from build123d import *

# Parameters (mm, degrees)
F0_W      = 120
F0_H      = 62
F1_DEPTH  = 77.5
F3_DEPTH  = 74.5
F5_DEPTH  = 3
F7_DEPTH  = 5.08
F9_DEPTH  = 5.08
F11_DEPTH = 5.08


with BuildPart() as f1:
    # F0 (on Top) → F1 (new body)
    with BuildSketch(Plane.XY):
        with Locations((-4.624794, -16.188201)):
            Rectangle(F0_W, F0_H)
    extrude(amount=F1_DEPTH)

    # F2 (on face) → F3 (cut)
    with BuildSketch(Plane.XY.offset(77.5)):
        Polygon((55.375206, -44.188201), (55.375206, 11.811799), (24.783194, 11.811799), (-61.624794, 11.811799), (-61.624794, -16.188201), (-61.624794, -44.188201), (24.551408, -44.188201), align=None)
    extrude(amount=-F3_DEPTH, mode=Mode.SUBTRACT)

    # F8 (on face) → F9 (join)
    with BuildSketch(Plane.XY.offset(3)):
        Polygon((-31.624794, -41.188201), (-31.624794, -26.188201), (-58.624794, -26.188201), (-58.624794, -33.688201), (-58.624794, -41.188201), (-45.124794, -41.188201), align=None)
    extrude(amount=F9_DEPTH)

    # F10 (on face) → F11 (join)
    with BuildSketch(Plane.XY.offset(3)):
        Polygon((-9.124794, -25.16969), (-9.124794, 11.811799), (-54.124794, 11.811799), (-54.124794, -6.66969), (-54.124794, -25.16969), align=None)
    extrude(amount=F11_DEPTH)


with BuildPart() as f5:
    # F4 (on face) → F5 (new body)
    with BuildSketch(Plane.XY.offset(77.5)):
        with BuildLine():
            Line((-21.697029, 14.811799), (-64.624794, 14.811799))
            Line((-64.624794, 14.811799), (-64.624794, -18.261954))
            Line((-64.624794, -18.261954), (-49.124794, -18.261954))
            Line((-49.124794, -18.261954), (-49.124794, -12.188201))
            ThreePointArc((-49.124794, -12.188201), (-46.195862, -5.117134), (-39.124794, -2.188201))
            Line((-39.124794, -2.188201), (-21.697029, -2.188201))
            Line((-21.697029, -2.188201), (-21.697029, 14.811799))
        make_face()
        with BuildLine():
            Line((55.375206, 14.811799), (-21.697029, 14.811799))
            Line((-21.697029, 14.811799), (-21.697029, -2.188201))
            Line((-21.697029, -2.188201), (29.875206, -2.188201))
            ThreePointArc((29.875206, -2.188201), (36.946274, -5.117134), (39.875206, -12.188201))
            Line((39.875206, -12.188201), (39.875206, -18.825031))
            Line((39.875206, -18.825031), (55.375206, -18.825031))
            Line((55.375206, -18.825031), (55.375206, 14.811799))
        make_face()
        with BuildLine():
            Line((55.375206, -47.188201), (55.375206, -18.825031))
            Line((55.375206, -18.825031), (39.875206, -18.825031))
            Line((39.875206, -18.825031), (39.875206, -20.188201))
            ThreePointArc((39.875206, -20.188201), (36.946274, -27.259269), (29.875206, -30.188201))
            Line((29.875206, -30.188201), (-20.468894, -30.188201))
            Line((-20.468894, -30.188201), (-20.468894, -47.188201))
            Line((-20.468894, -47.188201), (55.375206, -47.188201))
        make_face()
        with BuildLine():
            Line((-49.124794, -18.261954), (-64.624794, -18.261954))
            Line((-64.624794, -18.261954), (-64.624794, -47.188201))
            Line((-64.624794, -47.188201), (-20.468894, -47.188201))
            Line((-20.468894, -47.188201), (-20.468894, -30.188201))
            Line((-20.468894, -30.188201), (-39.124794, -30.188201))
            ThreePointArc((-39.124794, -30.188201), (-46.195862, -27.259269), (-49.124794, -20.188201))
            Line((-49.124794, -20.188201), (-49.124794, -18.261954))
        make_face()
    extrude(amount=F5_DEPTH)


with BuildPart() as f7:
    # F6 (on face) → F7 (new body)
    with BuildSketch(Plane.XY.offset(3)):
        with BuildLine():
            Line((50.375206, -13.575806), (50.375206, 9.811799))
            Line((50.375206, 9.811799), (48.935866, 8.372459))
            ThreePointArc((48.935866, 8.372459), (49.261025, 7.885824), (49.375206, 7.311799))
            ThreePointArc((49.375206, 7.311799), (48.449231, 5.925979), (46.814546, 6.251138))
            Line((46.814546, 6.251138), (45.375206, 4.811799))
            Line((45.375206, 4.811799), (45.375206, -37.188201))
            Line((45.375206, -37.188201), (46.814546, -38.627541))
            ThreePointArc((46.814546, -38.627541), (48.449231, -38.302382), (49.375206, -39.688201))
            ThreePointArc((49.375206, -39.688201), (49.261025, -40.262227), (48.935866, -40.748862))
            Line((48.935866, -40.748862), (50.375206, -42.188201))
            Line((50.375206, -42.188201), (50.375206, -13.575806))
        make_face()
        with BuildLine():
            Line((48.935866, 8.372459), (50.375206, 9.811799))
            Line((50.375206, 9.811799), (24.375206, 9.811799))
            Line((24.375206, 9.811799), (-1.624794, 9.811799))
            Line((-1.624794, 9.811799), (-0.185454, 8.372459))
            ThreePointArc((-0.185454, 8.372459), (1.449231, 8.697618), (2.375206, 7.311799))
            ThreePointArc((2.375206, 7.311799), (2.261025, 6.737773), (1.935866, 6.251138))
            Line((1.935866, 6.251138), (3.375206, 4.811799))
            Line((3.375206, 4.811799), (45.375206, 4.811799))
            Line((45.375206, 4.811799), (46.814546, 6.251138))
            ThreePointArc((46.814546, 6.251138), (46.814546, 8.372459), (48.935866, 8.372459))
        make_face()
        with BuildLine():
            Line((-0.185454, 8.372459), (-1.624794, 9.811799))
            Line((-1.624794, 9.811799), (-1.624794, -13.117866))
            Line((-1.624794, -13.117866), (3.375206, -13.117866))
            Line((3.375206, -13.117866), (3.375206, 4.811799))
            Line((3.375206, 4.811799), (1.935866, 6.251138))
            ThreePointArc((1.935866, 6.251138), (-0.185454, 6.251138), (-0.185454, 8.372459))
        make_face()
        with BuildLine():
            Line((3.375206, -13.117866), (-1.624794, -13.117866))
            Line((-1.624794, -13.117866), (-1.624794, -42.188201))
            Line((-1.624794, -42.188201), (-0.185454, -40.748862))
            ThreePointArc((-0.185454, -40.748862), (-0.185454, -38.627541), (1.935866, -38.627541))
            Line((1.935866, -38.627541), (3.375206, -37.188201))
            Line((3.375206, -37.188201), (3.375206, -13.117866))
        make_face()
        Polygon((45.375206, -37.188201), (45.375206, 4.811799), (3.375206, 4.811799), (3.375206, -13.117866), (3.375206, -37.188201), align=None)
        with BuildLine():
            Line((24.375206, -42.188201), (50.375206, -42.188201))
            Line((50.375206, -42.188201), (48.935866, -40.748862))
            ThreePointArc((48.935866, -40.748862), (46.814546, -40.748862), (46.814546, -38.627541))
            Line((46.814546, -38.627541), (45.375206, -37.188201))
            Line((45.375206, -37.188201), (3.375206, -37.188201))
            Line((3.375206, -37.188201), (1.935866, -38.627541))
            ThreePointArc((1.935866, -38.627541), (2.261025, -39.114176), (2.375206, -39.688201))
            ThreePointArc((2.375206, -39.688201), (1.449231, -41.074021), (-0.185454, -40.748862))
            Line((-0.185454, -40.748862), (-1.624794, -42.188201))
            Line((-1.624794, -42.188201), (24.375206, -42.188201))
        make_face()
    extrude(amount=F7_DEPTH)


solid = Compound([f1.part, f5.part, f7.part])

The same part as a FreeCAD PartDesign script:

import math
import FreeCAD as App
import Part
import Sketcher

V = App.Vector
Q = App.Units.Quantity


def add_polygon(sketch, points):
    """Adds a closed chain of lines whose ends are joined by coincident constraints."""
    first, n = sketch.GeometryCount, len(points)
    for a, b in zip(points, points[1:] + points[:1]):
        sketch.addGeometry(Part.LineSegment(App.Vector(*a, 0), App.Vector(*b, 0)), False)
    for i in range(n):
        sketch.addConstraint(Sketcher.Constraint("Coincident", first + i, 2, first + (i + 1) % n, 1))

doc = App.newDocument("Part")
params = doc.addObject("Spreadsheet::Sheet", "Params")
for row, (alias, value) in enumerate([
    ("sketch1_width", "120 mm"),
    ("sketch1_height", "62 mm"),
    ("pad1_length", "77.5 mm"),
    ("sketch2_width", "117 mm"),
    ("sketch2_height", "56 mm"),
    ("pocket1_length", "74.5 mm"),
    ("sketch3_width", "27 mm"),
    ("sketch3_height", "15 mm"),
    ("pad2_length", "5.08 mm"),
    ("sketch4_width", "45 mm"),
    ("pad3_length", "5.08 mm"),
    ("sketch5_radius", "9.999999 mm"),
    ("sketch5_width", "120 mm"),
    ("sketch5_width2", "69 mm"),
    ("sketch5_height", "62 mm"),
    ("sketch5_height2", "8 mm"),
    ("pad4_length", "3 mm"),
    ("sketch6_radius", "1.5 mm"),
    ("sketch6_width", "52 mm"),
    ("pad5_length", "5.08 mm"),
], start=1):
    params.set(f"A{row}", alias)
    params.set(f"B{row}", "=" + value)
    params.setAlias(f"B{row}", alias)

body = doc.addObject("PartDesign::Body", "Body")

# Sketch on XY plane
sketch1 = doc.addObject("Sketcher::SketchObject", "Sketch")
body.addObject(sketch1)
sketch1.AttachmentSupport = (doc.XY_Plane, [""])
sketch1.MapMode = "FlatFace"
add_polygon(sketch1, [(-65, 15), (-65, -47), (55, -47), (55, 15)])  # lines 0-3
sketch1.addConstraint([
    Sketcher.Constraint("Vertical", 0),
    Sketcher.Constraint("Horizontal", 1),
    Sketcher.Constraint("Vertical", 2),
    Sketcher.Constraint("Horizontal", 3),
    Sketcher.Constraint("DistanceX", 1, 1, 1, 2, Q("120 mm")),
    Sketcher.Constraint("DistanceY", 0, 2, 0, 1, Q("62 mm")),
    Sketcher.Constraint("DistanceY", 0, 2, -1, 1, Q("47.188201 mm")),
    Sketcher.Constraint("DistanceX", 0, 2, -1, 1, Q("64.624794 mm")),
])
sketch1.setExpression("Constraints[8]", "Params.sketch1_width")
sketch1.setExpression("Constraints[9]", "Params.sketch1_height")
pad1 = doc.addObject("PartDesign::Pad", "Pad")
body.addObject(pad1)
pad1.Profile = sketch1
pad1.setExpression("Length", "Params.pad1_length")

# Sketch on XY plane
sketch2 = doc.addObject("Sketcher::SketchObject", "Sketch001")
body.addObject(sketch2)
sketch2.AttachmentSupport = (doc.XY_Plane, [""])
sketch2.MapMode = "FlatFace"
sketch2.AttachmentOffset = App.Placement(V(0, 0, 77.5), App.Rotation())
add_polygon(sketch2, [(55, -44), (55, 12), (-62, 12), (-62, -44)])  # lines 0-3
sketch2.addConstraint([
    Sketcher.Constraint("Vertical", 0),
    Sketcher.Constraint("Horizontal", 1),
    Sketcher.Constraint("Vertical", 2),
    Sketcher.Constraint("Horizontal", 3),
    Sketcher.Constraint("DistanceX", 1, 2, 1, 1, Q("117 mm")),
    Sketcher.Constraint("DistanceY", 0, 1, 0, 2, Q("56 mm")),
    Sketcher.Constraint("DistanceY", -1, 1, 0, 2, Q("11.811799 mm")),
    Sketcher.Constraint("DistanceX", -1, 1, 0, 2, Q("55.375206 mm")),
])
sketch2.setExpression("Constraints[8]", "Params.sketch2_width")
sketch2.setExpression("Constraints[9]", "Params.sketch2_height")
pocket1 = doc.addObject("PartDesign::Pocket", "Pocket")
body.addObject(pocket1)
pocket1.Profile = sketch2
pocket1.setExpression("Length", "Params.pocket1_length")

# Sketch on XY plane
sketch3 = doc.addObject("Sketcher::SketchObject", "Sketch002")
body.addObject(sketch3)
sketch3.AttachmentSupport = (doc.XY_Plane, [""])
sketch3.MapMode = "FlatFace"
sketch3.AttachmentOffset = App.Placement(V(0, 0, 3), App.Rotation())
add_polygon(sketch3, [(-32, -41), (-32, -26), (-59, -26), (-59, -41)])  # lines 0-3
sketch3.addConstraint([
    Sketcher.Constraint("Vertical", 0),
    Sketcher.Constraint("Horizontal", 1),
    Sketcher.Constraint("Vertical", 2),
    Sketcher.Constraint("Horizontal", 3),
    Sketcher.Constraint("DistanceX", 1, 2, 1, 1, Q("27 mm")),
    Sketcher.Constraint("DistanceY", 0, 1, 0, 2, Q("15 mm")),
    Sketcher.Constraint("DistanceY", 0, 2, -1, 1, Q("26.188201 mm")),
    Sketcher.Constraint("DistanceX", 0, 2, -1, 1, Q("31.624794 mm")),
])
sketch3.setExpression("Constraints[8]", "Params.sketch3_width")
sketch3.setExpression("Constraints[9]", "Params.sketch3_height")
pad2 = doc.addObject("PartDesign::Pad", "Pad001")
body.addObject(pad2)
pad2.Profile = sketch3
pad2.setExpression("Length", "Params.pad2_length")

# Sketch on XY plane
sketch4 = doc.addObject("Sketcher::SketchObject", "Sketch003")
body.addObject(sketch4)
sketch4.AttachmentSupport = (doc.XY_Plane, [""])
sketch4.MapMode = "FlatFace"
sketch4.AttachmentOffset = App.Placement(V(0, 0, 3), App.Rotation())
add_polygon(sketch4, [(-9, -25), (-9, 12), (-54, 12), (-54, -25)])  # lines 0-3
sketch4.addConstraint([
    Sketcher.Constraint("Vertical", 0),
    Sketcher.Constraint("Horizontal", 1),
    Sketcher.Constraint("Vertical", 2),
    Sketcher.Constraint("Horizontal", 3),
    Sketcher.Constraint("DistanceX", 1, 2, 1, 1, Q("45 mm")),
    Sketcher.Constraint("DistanceY", 0, 1, 0, 2, Q("36.981489 mm")),
    Sketcher.Constraint("DistanceY", -1, 1, 0, 2, Q("11.811799 mm")),
    Sketcher.Constraint("DistanceX", 0, 2, -1, 1, Q("9.124794 mm")),
])
sketch4.setExpression("Constraints[8]", "Params.sketch4_width")
pad3 = doc.addObject("PartDesign::Pad", "Pad002")
body.addObject(pad3)
pad3.Profile = sketch4
pad3.setExpression("Length", "Params.pad3_length")
body2 = doc.addObject("PartDesign::Body", "Body001")

# Sketch on XY plane
sketch5 = doc.addObject("Sketcher::SketchObject", "Sketch004")
body2.addObject(sketch5)
sketch5.AttachmentSupport = (doc.getObject("XY_Plane001"), [""])
sketch5.MapMode = "FlatFace"
sketch5.AttachmentOffset = App.Placement(V(0, 0, 77.5), App.Rotation())
add_polygon(sketch5, [(55, 15), (-65, 15), (-65, -47), (55, -47)])  # lines 0-3
sketch5.addGeometry(Part.LineSegment(V(40, -12, 0), V(40, -20, 0)), False)  # 4
sketch5.addGeometry(Part.ArcOfCircle(Part.Circle(V(30, -20, 0), V(0, 0, 1), 10), math.radians(-90), math.radians(0)), False)  # 5
sketch5.addGeometry(Part.LineSegment(V(30, -30, 0), V(-39, -30, 0)), False)  # 6
sketch5.addGeometry(Part.ArcOfCircle(Part.Circle(V(-39, -20, 0), V(0, 0, 1), 10), math.radians(180), math.radians(270)), False)  # 7
sketch5.addGeometry(Part.LineSegment(V(-49, -20, 0), V(-49, -12, 0)), False)  # 8
sketch5.addGeometry(Part.ArcOfCircle(Part.Circle(V(-39, -12, 0), V(0, 0, 1), 10), math.radians(90), math.radians(180)), False)  # 9
sketch5.addGeometry(Part.LineSegment(V(-39, -2, 0), V(30, -2, 0)), False)  # 10
sketch5.addGeometry(Part.ArcOfCircle(Part.Circle(V(30, -12, 0), V(0, 0, 1), 10), math.radians(0), math.radians(90)), False)  # 11
sketch5.addConstraint([
    Sketcher.Constraint("Tangent", 4, 2, 5, 2),
    Sketcher.Constraint("Tangent", 5, 1, 6, 1),
    Sketcher.Constraint("Tangent", 6, 2, 7, 2),
    Sketcher.Constraint("Tangent", 7, 1, 8, 1),
    Sketcher.Constraint("Tangent", 8, 2, 9, 2),
    Sketcher.Constraint("Tangent", 9, 1, 10, 1),
    Sketcher.Constraint("Tangent", 10, 2, 11, 2),
    Sketcher.Constraint("Tangent", 11, 1, 4, 1),
    Sketcher.Constraint("Horizontal", 0),
    Sketcher.Constraint("Vertical", 1),
    Sketcher.Constraint("Horizontal", 2),
    Sketcher.Constraint("Vertical", 3),
    Sketcher.Constraint("Vertical", 4),
    Sketcher.Constraint("Horizontal", 6),
    Sketcher.Constraint("Vertical", 8),
    Sketcher.Constraint("Horizontal", 10),
    Sketcher.Constraint("Equal", 5, 7),
    Sketcher.Constraint("Equal", 7, 9),
    Sketcher.Constraint("Equal", 9, 11),
    Sketcher.Constraint("Radius", 5, Q("9.999999 mm")),
    Sketcher.Constraint("DistanceX", 0, 2, 0, 1, Q("120 mm")),
    Sketcher.Constraint("DistanceX", 6, 2, 6, 1, Q("69 mm")),
    Sketcher.Constraint("DistanceY", 1, 2, 1, 1, Q("62 mm")),
    Sketcher.Constraint("DistanceY", 4, 2, 4, 1, Q("8 mm")),
    Sketcher.Constraint("DistanceY", 9, 3, 0, 2, Q("27.000001 mm")),
    Sketcher.Constraint("DistanceX", 0, 2, 9, 3, Q("25.500001 mm")),
    Sketcher.Constraint("DistanceY", 5, 3, -1, 1, Q("20.188202 mm")),
    Sketcher.Constraint("DistanceX", -1, 1, 5, 3, Q("29.875207 mm")),
])
sketch5.setExpression("Constraints[23]", "Params.sketch5_radius")
sketch5.setExpression("Constraints[24]", "Params.sketch5_width")
sketch5.setExpression("Constraints[25]", "Params.sketch5_width2")
sketch5.setExpression("Constraints[26]", "Params.sketch5_height")
sketch5.setExpression("Constraints[27]", "Params.sketch5_height2")
pad4 = doc.addObject("PartDesign::Pad", "Pad003")
body2.addObject(pad4)
pad4.Profile = sketch5
pad4.setExpression("Length", "Params.pad4_length")
body3 = doc.addObject("PartDesign::Body", "Body002")

# Sketch on XY plane
sketch6 = doc.addObject("Sketcher::SketchObject", "Sketch005")
body3.addObject(sketch6)
sketch6.AttachmentSupport = (doc.getObject("XY_Plane002"), [""])
sketch6.MapMode = "FlatFace"
sketch6.AttachmentOffset = App.Placement(V(0, 0, 3), App.Rotation())
add_polygon(sketch6, [(50.4, -42.2), (50.4, 9.8), (-1.6, 9.8), (-1.6, -42.2)])  # lines 0-3
sketch6.addGeometry(Part.ArcOfCircle(Part.Circle(V(47.9, 7.3, 0), V(0, 0, 1), 1.5), math.radians(0), math.radians(45)), False)  # 4
sketch6.addGeometry(Part.ArcOfCircle(Part.Circle(V(47.9, 7.3, 0), V(0, 0, 1), 1.5), math.radians(-135), math.radians(0)), False)  # 5
sketch6.addGeometry(Part.ArcOfCircle(Part.Circle(V(47.9, 7.3, 0), V(0, 0, 1), 1.5), math.radians(45), math.radians(225)), False)  # 6
sketch6.addGeometry(Part.ArcOfCircle(Part.Circle(V(47.9, -39.7, 0), V(0, 0, 1), 1.5), math.radians(0), math.radians(135)), False)  # 7
sketch6.addGeometry(Part.ArcOfCircle(Part.Circle(V(47.9, -39.7, 0), V(0, 0, 1), 1.5), math.radians(-45), math.radians(0)), False)  # 8
sketch6.addGeometry(Part.ArcOfCircle(Part.Circle(V(47.9, -39.7, 0), V(0, 0, 1), 1.5), math.radians(135), math.radians(315)), False)  # 9
sketch6.addGeometry(Part.ArcOfCircle(Part.Circle(V(0.9, -39.7, 0), V(0, 0, 1), 1.5), math.radians(45), math.radians(225)), False)  # 10
sketch6.addGeometry(Part.ArcOfCircle(Part.Circle(V(0.9, -39.7, 0), V(0, 0, 1), 1.5), math.radians(0), math.radians(45)), False)  # 11
sketch6.addGeometry(Part.ArcOfCircle(Part.Circle(V(0.9, -39.7, 0), V(0, 0, 1), 1.5), math.radians(-135), math.radians(0)), False)  # 12
sketch6.addGeometry(Part.ArcOfCircle(Part.Circle(V(0.9, 7.3, 0), V(0, 0, 1), 1.5), math.radians(0), math.radians(135)), False)  # 13
sketch6.addGeometry(Part.ArcOfCircle(Part.Circle(V(0.9, 7.3, 0), V(0, 0, 1), 1.5), math.radians(-45), math.radians(0)), False)  # 14
sketch6.addGeometry(Part.ArcOfCircle(Part.Circle(V(0.9, 7.3, 0), V(0, 0, 1), 1.5), math.radians(135), math.radians(315)), False)  # 15
sketch6.addConstraint([
    Sketcher.Constraint("Tangent", 4, 1, 5, 2),
    Sketcher.Constraint("Tangent", 5, 1, 6, 2),
    Sketcher.Constraint("Tangent", 6, 1, 4, 2),
    Sketcher.Constraint("Tangent", 7, 1, 8, 2),
    Sketcher.Constraint("Tangent", 8, 1, 9, 2),
    Sketcher.Constraint("Tangent", 9, 1, 7, 2),
    Sketcher.Constraint("Tangent", 10, 1, 11, 2),
    Sketcher.Constraint("Tangent", 11, 1, 12, 2),
    Sketcher.Constraint("Tangent", 12, 1, 10, 2),
    Sketcher.Constraint("Tangent", 13, 1, 14, 2),
    Sketcher.Constraint("Tangent", 14, 1, 15, 2),
    Sketcher.Constraint("Tangent", 15, 1, 13, 2),
    Sketcher.Constraint("Vertical", 0),
    Sketcher.Constraint("Horizontal", 1),
    Sketcher.Constraint("Vertical", 2),
    Sketcher.Constraint("Horizontal", 3),
    Sketcher.Constraint("Equal", 6, 7),
    Sketcher.Constraint("Equal", 9, 10),
    Sketcher.Constraint("Equal", 12, 13),
    Sketcher.Constraint("Horizontal", 9, 3, 10, 3),
    Sketcher.Constraint("Horizontal", 6, 3, 13, 3),
    Sketcher.Constraint("Horizontal", 15, 3, 4, 1),
    Sketcher.Constraint("Horizontal", 12, 3, 7, 1),
    Sketcher.Constraint("Horizontal", 9, 1, 10, 1),
    Sketcher.Constraint("Horizontal", 7, 1, 11, 1),
    Sketcher.Constraint("Horizontal", 8, 1, 12, 1),
    Sketcher.Constraint("Horizontal", 4, 1, 13, 1),
    Sketcher.Constraint("Horizontal", 5, 1, 14, 1),
    Sketcher.Constraint("Horizontal", 6, 1, 15, 1),
    Sketcher.Constraint("Vertical", 6, 3, 7, 3),
    Sketcher.Constraint("Vertical", 12, 3, 13, 3),
    Sketcher.Constraint("Vertical", 6, 1, 8, 1),
    Sketcher.Constraint("Vertical", 5, 1, 9, 1),
    Sketcher.Constraint("Equal", 3, 0),
    Sketcher.Constraint("Radius", 5, Q("1.5 mm")),
    Sketcher.Constraint("DistanceX", 1, 2, 1, 1, Q("52 mm")),
    Sketcher.Constraint("DistanceY", 7, 3, 4, 3, Q("46.999999 mm")),
    Sketcher.Constraint("DistanceX", 10, 3, 7, 3, Q("47 mm")),
    Sketcher.Constraint("DistanceX", 4, 1, 0, 2, Q("1 mm")),
    Sketcher.Constraint("DistanceY", 6, 3, 0, 2, Q("2.500001 mm")),
    Sketcher.Constraint("DistanceY", -1, 1, 5, 3, Q("7.311798 mm")),
    Sketcher.Constraint("DistanceY", -1, 1, 6, 1, Q("8.372459 mm")),
    Sketcher.Constraint("DistanceY", 9, 1, -1, 1, Q("38.627541 mm")),
    Sketcher.Constraint("DistanceX", -1, 1, 4, 3, Q("47.875204 mm")),
])
sketch6.setExpression("Constraints[38]", "Params.sketch6_radius")
sketch6.setExpression("Constraints[39]", "Params.sketch6_width")
pad5 = doc.addObject("PartDesign::Pad", "Pad004")
body3.addObject(pad5)
pad5.Profile = sketch6
pad5.setExpression("Length", "Params.pad5_length")

doc.recompute()
